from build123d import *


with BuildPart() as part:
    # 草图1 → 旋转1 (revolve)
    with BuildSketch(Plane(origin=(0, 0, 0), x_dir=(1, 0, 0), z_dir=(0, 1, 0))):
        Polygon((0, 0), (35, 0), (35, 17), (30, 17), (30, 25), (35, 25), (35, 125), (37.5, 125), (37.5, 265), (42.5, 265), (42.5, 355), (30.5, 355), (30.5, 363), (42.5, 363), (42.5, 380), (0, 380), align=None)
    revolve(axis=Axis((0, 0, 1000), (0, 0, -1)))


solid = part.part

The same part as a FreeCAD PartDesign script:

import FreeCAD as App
import Part
import Sketcher

V = App.Vector

doc = App.newDocument("Part")
params = doc.addObject("Spreadsheet::Sheet", "Params")
for row, (alias, value) in enumerate([
    ("sketch1_width", "35 mm"),
    ("sketch1_width2", "5 mm"),
    ("sketch1_width3", "12 mm"),
    ("sketch1_height", "17 mm"),
    ("sketch1_height2", "8 mm"),
    ("revolution_angle", "360 deg"),
], start=1):
    params.set(f"A{row}", alias)
    params.set(f"B{row}", "=" + value)
    params.setAlias(f"B{row}", alias)

body = doc.addObject("PartDesign::Body", "Body")

# Sketch on XZ plane
sketch1 = doc.addObject("Sketcher::SketchObject", "Sketch")
body.addObject(sketch1)
sketch1.AttachmentSupport = (doc.XZ_Plane, [""])
sketch1.MapMode = "FlatFace"
sketch1.addGeometry([
    Part.LineSegment(V(0, 0, 0), V(35, 0, 0)),  # 0
    Part.LineSegment(V(35, 0, 0), V(35, -17, 0)),  # 1
    Part.LineSegment(V(35, -17, 0), V(30, -17, 0)),  # 2
    Part.LineSegment(V(30, -17, 0), V(30, -25, 0)),  # 3
    Part.LineSegment(V(30, -25, 0), V(35, -25, 0)),  # 4
    Part.LineSegment(V(35, -25, 0), V(35, -125, 0)),  # 5
    Part.LineSegment(V(35, -125, 0), V(37.5, -125, 0)),  # 6
    Part.LineSegment(V(37.5, -125, 0), V(37.5, -265, 0)),  # 7
    Part.LineSegment(V(37.5, -265, 0), V(42.5, -265, 0)),  # 8
    Part.LineSegment(V(42.5, -265, 0), V(42.5, -355, 0)),  # 9
    Part.LineSegment(V(42.5, -355, 0), V(30.5, -355, 0)),  # 10
    Part.LineSegment(V(30.5, -355, 0), V(30.5, -363, 0)),  # 11
    Part.LineSegment(V(30.5, -363, 0), V(42.5, -363, 0)),  # 12
    Part.LineSegment(V(42.5, -363, 0), V(42.5, -380, 0)),  # 13
    Part.LineSegment(V(42.5, -380, 0), V(0, -380, 0)),  # 14
    Part.LineSegment(V(0, -380, 0), V(0, 0, 0)),  # 15
], False)
sketch1.addConstraint([
    Sketcher.Constraint("Coincident", 0, 2, 1, 1),
    Sketcher.Constraint("Coincident", 1, 2, 2, 1),
    Sketcher.Constraint("Coincident", 2, 2, 3, 1),
    Sketcher.Constraint("Coincident", 3, 2, 4, 1),
    Sketcher.Constraint("Coincident", 4, 2, 5, 1),
    Sketcher.Constraint("Coincident", 5, 2, 6, 1),
    Sketcher.Constraint("Coincident", 6, 2, 7, 1),
    Sketcher.Constraint("Coincident", 7, 2, 8, 1),
    Sketcher.Constraint("Coincident", 8, 2, 9, 1),
    Sketcher.Constraint("Coincident", 9, 2, 10, 1),
    Sketcher.Constraint("Coincident", 10, 2, 11, 1),
    Sketcher.Constraint("Coincident", 11, 2, 12, 1),
    Sketcher.Constraint("Coincident", 12, 2, 13, 1),
    Sketcher.Constraint("Coincident", 13, 2, 14, 1),
    Sketcher.Constraint("Coincident", 14, 2, 15, 1),
    Sketcher.Constraint("Coincident", 15, 2, 0, 1),
    Sketcher.Constraint("Horizontal", 0),
    Sketcher.Constraint("Vertical", 1),
    Sketcher.Constraint("Horizontal", 2),
    Sketcher.Constraint("Vertical", 3),
    Sketcher.Constraint("Horizontal", 4),
    Sketcher.Constraint("Vertical", 5),
    Sketcher.Constraint("Horizontal", 6),
    Sketcher.Constraint("Vertical", 7),
    Sketcher.Constraint("Horizontal", 8),
    Sketcher.Constraint("Vertical", 9),
    Sketcher.Constraint("Horizontal", 10),
    Sketcher.Constraint("Vertical", 11),
    Sketcher.Constraint("Horizontal", 12),
    Sketcher.Constraint("Vertical", 13),
    Sketcher.Constraint("Horizontal", 14),
    Sketcher.Constraint("Vertical", 15),
    Sketcher.Constraint("Coincident", 15, 2, -1, 1),
    Sketcher.Constraint("Vertical", 1, 2, 4, 2),
    Sketcher.Constraint("Vertical", 9, 2, 12, 2),
    Sketcher.Constraint("Equal", 4, 8),
    Sketcher.Constraint("Equal", 3, 11),
    Sketcher.Constraint("Equal", 1, 13),
    Sketcher.Constraint("DistanceX", 0, 1, 0, 2, 35.0),
    Sketcher.Constraint("DistanceX", 2, 2, 2, 1, 5.0),
    Sketcher.Constraint("DistanceX", 10, 2, 10, 1, 12.0),
    Sketcher.Constraint("DistanceY", 1, 2, 1, 1, 17.0),
    Sketcher.Constraint("DistanceY", 3, 2, 3, 1, 8.0),
    Sketcher.Constraint("DistanceY", 5, 2, 5, 1, 100.0),
    Sketcher.Constraint("DistanceY", 7, 2, 7, 1, 140.0),
    Sketcher.Constraint("DistanceY", 9, 2, 9, 1, 90.0),
    Sketcher.Constraint("DistanceX", 6, 1, 6, 2, 2.5),
])
sketch1.setExpression("Constraints[38]", "Params.sketch1_width")
sketch1.setExpression("Constraints[39]", "Params.sketch1_width2")
sketch1.setExpression("Constraints[40]", "Params.sketch1_width3")
sketch1.setExpression("Constraints[41]", "Params.sketch1_height")
sketch1.setExpression("Constraints[42]", "Params.sketch1_height2")
revolution = doc.addObject("PartDesign::Revolution", "Revolution")
body.addObject(revolution)
revolution.Profile = sketch1
revolution.ReferenceAxis = (sketch1, ["V_Axis"])
revolution.setExpression("Angle", "Params.revolution_angle")

doc.recompute()
